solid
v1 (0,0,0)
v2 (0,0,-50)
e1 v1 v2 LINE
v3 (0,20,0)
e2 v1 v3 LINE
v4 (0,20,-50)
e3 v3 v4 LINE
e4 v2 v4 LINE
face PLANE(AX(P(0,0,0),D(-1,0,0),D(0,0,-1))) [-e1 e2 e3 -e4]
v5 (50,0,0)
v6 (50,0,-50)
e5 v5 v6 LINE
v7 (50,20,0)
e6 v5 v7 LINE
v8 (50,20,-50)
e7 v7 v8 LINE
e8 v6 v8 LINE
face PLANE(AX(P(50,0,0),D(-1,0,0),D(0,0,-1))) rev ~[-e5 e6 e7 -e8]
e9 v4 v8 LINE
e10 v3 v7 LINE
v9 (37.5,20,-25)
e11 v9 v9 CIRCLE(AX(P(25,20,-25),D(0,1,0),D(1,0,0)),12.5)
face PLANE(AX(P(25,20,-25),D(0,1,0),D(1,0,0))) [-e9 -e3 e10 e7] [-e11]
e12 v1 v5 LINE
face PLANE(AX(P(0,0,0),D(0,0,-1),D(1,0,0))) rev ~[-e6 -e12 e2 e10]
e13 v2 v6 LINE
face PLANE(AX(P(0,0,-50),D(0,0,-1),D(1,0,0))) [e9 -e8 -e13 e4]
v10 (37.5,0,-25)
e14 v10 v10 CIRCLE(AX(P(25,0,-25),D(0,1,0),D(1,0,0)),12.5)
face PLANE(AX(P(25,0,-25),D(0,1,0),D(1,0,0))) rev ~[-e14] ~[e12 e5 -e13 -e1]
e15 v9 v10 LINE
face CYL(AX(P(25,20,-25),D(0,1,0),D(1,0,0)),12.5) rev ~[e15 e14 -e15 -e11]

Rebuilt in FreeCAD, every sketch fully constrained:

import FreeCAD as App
import Part
import Sketcher

doc = App.newDocument("Part")
params = doc.addObject("Spreadsheet::Sheet", "Params")
for row, (alias, value) in enumerate([
    ("sketch1_width", "50 mm"),
    ("pad1_length", "20 mm"),
    ("sketch2_diameter", "25 mm"),
    ("pocket1_length", "30 mm"),
], start=1):
    params.set(f"A{row}", alias)
    params.set(f"B{row}", "=" + value)
    params.setAlias(f"B{row}", alias)

body = doc.addObject("PartDesign::Body", "Body")

# Sketch on XZ plane
sketch1 = body.newObject("Sketcher::SketchObject", "Sketch")
sketch1.AttachmentSupport = (doc.getObject("XZ_Plane"), [""])
sketch1.MapMode = "FlatFace"
sketch1.addGeometry([
    Part.LineSegment(App.Vector(0, -50, 0), App.Vector(0, 0, 0)),
    Part.LineSegment(App.Vector(0, 0, 0), App.Vector(50, 0, 0)),
    Part.LineSegment(App.Vector(50, 0, 0), App.Vector(50, -50, 0)),
    Part.LineSegment(App.Vector(50, -50, 0), App.Vector(0, -50, 0)),
], False)
sketch1.addConstraint([
    Sketcher.Constraint("Coincident", 0, 2, 1, 1),
    Sketcher.Constraint("Coincident", 1, 2, 2, 1),
    Sketcher.Constraint("Coincident", 2, 2, 3, 1),
    Sketcher.Constraint("Coincident", 3, 2, 0, 1),
    Sketcher.Constraint("Vertical", 0),
    Sketcher.Constraint("Horizontal", 1),
    Sketcher.Constraint("Vertical", 2),
    Sketcher.Constraint("Horizontal", 3),
    Sketcher.Constraint("Coincident", 0, 2, -1, 1),
    Sketcher.Constraint("Equal", 3, 0),
    Sketcher.Constraint("DistanceX", 1, 1, 1, 2, 50.0),
])
sketch1.setExpression("Constraints[10]", "Params.sketch1_width")
pad1 = body.newObject("PartDesign::Pad", "Pad")
pad1.Profile = sketch1
pad1.setExpression("Length", "Params.pad1_length")
pad1.Reversed = True

# Sketch on XZ plane
sketch2 = body.newObject("Sketcher::SketchObject", "Sketch001")
sketch2.AttachmentSupport = (doc.getObject("XZ_Plane"), [""])
sketch2.MapMode = "FlatFace"
sketch2.AttachmentOffset = App.Placement(App.Vector(0, 0, -20), App.Rotation())
sketch2.addGeometry(Part.Circle(App.Vector(25, -25, 0), App.Vector(0, 0, 1), 12), False)
sketch2.addConstraint([
    Sketcher.Constraint("Diameter", 0, 25.0),
    Sketcher.Constraint("DistanceX", -1, 1, 0, 3, 25.0),
    Sketcher.Constraint("DistanceY", 0, 3, -1, 1, 25.0),
])
sketch2.setExpression("Constraints[0]", "Params.sketch2_diameter")
pocket1 = body.newObject("PartDesign::Pocket", "Pocket")
pocket1.Profile = sketch2
pocket1.setExpression("Length", "Params.pocket1_length")
pocket1.Reversed = True

doc.recompute()
